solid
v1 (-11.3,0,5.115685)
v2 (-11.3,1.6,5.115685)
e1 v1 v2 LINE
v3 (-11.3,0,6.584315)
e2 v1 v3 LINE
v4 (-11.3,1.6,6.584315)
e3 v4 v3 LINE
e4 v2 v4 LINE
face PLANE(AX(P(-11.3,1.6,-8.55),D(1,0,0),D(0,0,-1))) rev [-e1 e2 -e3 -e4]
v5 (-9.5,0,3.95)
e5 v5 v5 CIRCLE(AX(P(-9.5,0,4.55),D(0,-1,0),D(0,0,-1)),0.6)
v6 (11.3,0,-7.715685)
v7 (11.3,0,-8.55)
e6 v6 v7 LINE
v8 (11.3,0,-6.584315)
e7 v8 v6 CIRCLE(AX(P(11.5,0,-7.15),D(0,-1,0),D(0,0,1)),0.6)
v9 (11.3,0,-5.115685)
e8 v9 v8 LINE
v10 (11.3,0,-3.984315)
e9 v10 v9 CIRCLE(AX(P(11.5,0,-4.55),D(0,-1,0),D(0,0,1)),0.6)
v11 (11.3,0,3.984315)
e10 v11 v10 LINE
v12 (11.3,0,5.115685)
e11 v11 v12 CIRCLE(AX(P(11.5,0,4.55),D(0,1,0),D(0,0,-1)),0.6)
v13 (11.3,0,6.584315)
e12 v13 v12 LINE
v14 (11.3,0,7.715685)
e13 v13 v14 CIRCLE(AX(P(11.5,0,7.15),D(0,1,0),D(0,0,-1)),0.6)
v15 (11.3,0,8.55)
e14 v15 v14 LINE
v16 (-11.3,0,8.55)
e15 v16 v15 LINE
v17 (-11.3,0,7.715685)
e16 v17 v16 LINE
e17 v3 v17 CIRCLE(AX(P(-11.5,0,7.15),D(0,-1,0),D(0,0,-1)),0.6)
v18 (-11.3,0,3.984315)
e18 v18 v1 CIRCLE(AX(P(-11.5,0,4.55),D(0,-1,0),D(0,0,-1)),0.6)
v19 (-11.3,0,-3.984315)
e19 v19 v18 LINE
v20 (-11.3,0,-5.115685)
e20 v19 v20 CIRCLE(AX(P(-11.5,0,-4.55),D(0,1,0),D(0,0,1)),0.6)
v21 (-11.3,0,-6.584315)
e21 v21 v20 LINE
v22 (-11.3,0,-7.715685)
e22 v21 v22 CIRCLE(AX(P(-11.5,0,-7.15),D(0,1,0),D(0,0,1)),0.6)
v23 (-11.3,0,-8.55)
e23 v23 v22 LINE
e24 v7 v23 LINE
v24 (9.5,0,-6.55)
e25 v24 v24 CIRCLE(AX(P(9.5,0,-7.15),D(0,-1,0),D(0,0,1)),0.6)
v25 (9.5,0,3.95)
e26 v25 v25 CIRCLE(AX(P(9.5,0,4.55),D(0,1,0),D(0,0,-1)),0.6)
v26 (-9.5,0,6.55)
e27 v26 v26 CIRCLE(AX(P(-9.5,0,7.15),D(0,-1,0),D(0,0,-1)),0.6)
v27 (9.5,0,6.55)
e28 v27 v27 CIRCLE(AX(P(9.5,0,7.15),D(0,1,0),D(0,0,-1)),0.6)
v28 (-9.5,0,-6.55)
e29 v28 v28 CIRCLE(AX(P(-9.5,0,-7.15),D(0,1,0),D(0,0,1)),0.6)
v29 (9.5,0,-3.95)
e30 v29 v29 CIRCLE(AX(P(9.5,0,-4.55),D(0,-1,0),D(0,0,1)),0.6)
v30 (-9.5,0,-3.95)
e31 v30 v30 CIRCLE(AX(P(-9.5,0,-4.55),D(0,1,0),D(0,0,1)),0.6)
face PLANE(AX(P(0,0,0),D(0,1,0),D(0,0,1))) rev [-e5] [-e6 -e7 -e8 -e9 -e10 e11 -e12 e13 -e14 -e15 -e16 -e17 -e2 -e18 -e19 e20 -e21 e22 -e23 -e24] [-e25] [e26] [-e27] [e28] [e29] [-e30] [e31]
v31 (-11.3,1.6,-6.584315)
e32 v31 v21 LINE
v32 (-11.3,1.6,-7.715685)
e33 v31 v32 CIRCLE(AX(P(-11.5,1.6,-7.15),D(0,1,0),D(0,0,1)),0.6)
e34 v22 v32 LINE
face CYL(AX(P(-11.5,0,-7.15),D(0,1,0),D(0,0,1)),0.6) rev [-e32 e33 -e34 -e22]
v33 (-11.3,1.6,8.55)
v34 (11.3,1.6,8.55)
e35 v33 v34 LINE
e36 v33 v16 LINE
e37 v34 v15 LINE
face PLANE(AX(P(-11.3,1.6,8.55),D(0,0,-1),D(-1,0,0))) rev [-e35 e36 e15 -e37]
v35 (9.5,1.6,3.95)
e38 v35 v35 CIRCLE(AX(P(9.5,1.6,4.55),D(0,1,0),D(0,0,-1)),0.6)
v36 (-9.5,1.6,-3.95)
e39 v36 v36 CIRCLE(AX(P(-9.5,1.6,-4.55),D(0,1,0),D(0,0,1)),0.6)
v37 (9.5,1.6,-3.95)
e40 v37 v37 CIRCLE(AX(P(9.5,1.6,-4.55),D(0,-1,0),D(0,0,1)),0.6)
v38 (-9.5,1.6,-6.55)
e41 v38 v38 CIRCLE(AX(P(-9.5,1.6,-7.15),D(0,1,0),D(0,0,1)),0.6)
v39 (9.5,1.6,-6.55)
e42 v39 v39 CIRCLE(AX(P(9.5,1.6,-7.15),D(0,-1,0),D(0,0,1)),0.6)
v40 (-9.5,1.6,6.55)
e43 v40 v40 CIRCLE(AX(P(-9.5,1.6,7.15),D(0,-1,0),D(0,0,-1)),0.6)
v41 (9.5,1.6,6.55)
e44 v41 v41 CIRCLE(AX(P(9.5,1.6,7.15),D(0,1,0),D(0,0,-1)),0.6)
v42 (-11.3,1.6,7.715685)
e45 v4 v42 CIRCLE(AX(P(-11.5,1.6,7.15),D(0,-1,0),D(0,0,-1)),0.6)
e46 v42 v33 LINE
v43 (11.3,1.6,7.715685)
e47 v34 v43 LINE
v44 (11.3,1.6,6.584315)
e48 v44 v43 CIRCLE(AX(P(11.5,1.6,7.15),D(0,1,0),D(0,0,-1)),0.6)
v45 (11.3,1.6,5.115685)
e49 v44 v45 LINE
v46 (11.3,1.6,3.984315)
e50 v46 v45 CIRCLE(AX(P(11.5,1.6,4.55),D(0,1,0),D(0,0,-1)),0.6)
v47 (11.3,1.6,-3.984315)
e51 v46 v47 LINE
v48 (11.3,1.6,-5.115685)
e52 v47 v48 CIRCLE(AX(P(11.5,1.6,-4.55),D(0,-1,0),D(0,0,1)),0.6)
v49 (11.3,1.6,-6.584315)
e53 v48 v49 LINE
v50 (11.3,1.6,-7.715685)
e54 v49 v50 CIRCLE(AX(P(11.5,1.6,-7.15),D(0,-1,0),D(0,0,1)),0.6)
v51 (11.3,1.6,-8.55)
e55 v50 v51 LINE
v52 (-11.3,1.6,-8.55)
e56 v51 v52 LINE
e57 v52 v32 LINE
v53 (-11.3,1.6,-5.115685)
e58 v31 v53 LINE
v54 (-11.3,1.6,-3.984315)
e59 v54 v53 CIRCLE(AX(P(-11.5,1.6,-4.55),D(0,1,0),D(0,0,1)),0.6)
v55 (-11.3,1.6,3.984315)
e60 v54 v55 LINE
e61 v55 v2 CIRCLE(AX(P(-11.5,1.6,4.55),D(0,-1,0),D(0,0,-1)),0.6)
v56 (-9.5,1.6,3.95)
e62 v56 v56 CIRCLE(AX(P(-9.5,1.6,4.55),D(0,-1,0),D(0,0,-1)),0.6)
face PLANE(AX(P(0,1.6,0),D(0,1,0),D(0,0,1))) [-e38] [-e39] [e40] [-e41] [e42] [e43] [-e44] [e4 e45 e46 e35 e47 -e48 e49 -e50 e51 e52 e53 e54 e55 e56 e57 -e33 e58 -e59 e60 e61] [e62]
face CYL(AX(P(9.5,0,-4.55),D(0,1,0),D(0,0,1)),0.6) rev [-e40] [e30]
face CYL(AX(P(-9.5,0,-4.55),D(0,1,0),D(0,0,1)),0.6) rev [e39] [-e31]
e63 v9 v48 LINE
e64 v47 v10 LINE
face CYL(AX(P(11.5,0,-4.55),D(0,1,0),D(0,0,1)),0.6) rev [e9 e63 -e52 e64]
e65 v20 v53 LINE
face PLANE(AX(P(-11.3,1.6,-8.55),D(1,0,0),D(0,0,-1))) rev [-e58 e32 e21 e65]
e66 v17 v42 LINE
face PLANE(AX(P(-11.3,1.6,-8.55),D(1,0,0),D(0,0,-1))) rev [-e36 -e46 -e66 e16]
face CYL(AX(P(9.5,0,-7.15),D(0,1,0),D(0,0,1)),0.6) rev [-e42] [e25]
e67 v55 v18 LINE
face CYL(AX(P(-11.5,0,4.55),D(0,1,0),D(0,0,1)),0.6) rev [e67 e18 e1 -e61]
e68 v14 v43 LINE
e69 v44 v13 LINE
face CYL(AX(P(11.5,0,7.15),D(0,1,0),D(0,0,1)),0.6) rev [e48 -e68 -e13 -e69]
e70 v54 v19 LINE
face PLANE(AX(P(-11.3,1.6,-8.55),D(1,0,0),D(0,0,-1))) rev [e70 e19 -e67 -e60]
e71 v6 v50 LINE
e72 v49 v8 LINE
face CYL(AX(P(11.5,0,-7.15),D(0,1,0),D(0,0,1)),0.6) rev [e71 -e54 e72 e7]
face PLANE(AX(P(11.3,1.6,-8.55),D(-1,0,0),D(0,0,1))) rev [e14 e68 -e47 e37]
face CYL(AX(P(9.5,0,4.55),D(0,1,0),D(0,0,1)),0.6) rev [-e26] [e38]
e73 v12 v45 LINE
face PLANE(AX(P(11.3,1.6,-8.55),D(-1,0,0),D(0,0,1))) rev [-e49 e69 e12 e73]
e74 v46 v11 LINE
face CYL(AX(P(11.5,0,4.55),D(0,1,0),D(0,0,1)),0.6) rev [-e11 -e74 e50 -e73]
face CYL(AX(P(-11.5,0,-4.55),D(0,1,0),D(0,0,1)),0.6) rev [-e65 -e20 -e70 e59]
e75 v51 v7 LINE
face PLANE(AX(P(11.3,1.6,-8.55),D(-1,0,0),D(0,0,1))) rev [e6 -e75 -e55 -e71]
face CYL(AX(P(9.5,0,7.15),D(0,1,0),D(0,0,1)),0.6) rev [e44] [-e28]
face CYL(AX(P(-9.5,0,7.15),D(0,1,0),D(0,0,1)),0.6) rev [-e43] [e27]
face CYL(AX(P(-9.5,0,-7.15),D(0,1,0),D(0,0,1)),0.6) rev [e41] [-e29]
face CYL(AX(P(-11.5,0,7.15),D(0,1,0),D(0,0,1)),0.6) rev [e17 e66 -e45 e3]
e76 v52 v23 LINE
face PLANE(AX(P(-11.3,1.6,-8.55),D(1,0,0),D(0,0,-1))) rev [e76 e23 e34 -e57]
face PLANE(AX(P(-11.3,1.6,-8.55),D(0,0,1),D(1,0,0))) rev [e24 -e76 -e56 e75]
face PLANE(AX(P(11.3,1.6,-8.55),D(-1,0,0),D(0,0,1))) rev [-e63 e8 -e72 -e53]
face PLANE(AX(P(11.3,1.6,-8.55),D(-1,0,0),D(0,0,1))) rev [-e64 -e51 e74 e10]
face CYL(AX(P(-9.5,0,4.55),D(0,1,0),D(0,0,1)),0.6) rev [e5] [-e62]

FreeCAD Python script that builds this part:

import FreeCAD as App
import Part
import Sketcher

doc = App.newDocument("Part")
body = doc.addObject("PartDesign::Body", "Body")

# Sketch on XZ plane
sketch1 = body.newObject("Sketcher::SketchObject", "Sketch")
sketch1.AttachmentSupport = (doc.getObject("XZ_Plane"), [""])
sketch1.MapMode = "FlatFace"
sketch1.addGeometry([
    Part.LineSegment(App.Vector(-11.3, -8.55, 0), App.Vector(-11.3, 8.55, 0)),
    Part.LineSegment(App.Vector(-11.3, 8.55, 0), App.Vector(11.3, 8.55, 0)),
    Part.LineSegment(App.Vector(11.3, 8.55, 0), App.Vector(11.3, -8.55, 0)),
    Part.LineSegment(App.Vector(11.3, -8.55, 0), App.Vector(-11.3, -8.55, 0)),
], False)
sketch1.addConstraint([
    Sketcher.Constraint("Coincident", 0, 2, 1, 1),
    Sketcher.Constraint("Coincident", 1, 2, 2, 1),
    Sketcher.Constraint("Coincident", 2, 2, 3, 1),
    Sketcher.Constraint("Coincident", 3, 2, 0, 1),
    Sketcher.Constraint("Vertical", 0),
    Sketcher.Constraint("Horizontal", 1),
    Sketcher.Constraint("Vertical", 2),
    Sketcher.Constraint("Horizontal", 3),
    Sketcher.Constraint("Symmetric", 0, 2, 2, 2, -1, 1),
    Sketcher.Constraint("DistanceX", 1, 1, 1, 2, 22.6),
    Sketcher.Constraint("DistanceY", 0, 1, 0, 2, 17.1),
])
pad1 = body.newObject("PartDesign::Pad", "Pad")
pad1.Profile = sketch1
pad1.Length = 1.6
pad1.Reversed = True

# Sketch on XZ plane
sketch2 = body.newObject("Sketcher::SketchObject", "Sketch001")
sketch2.AttachmentSupport = (doc.getObject("XZ_Plane"), [""])
sketch2.MapMode = "FlatFace"
sketch2.AttachmentOffset = App.Placement(App.Vector(0, 0, -1.6), App.Rotation())
sketch2.addGeometry([
    Part.Circle(App.Vector(-9.5, -7.15, 0), App.Vector(0, 0, 1), 0.6),
    Part.Circle(App.Vector(-9.5, -4.55, 0), App.Vector(0, 0, 1), 0.6),
], False)
sketch2.addConstraint([
    Sketcher.Constraint("Equal", 0, 1),
    Sketcher.Constraint("Vertical", 0, 3, 1, 3),
    Sketcher.Constraint("Diameter", 0, 1.2),
    Sketcher.Constraint("DistanceX", 0, 3, -1, 1, 9.5),
    Sketcher.Constraint("DistanceY", 0, 3, 1, 3, 2.6),
    Sketcher.Constraint("DistanceY", 0, 3, -1, 1, 7.15),
])
pocket1 = body.newObject("PartDesign::Pocket", "Pocket")
pocket1.Profile = sketch2
pocket1.Type = "ThroughAll"
pocket1.Reversed = True
doc.recompute()

linearpattern = body.newObject("PartDesign::LinearPattern", "LinearPattern")
linearpattern.Originals = [pocket1]
linearpattern.Direction = (doc.getObject("X_Axis"), [""])
linearpattern.Mode = "offset"
linearpattern.Offset = 2
linearpattern.Occurrences = 2
linearpattern.Reversed = True
body.Tip = linearpattern
doc.recompute()

mirrored = body.newObject("PartDesign::Mirrored", "Mirrored")
mirrored.Originals = [pocket1]
mirrored.MirrorPlane = (doc.getObject("YZ_Plane"), [""])
body.Tip = mirrored

# Sketch on XZ plane
sketch3 = body.newObject("Sketcher::SketchObject", "Sketch002")
sketch3.AttachmentSupport = (doc.getObject("XZ_Plane"), [""])
sketch3.MapMode = "FlatFace"
sketch3.AttachmentOffset = App.Placement(App.Vector(0, 0, -1.6), App.Rotation())
sketch3.addGeometry([
    Part.Circle(App.Vector(11.5, -7.15, 0), App.Vector(0, 0, 1), 0.6),
    Part.Circle(App.Vector(11.5, -4.55, 0), App.Vector(0, 0, 1), 0.6),
], False)
sketch3.addConstraint([
    Sketcher.Constraint("Equal", 0, 1),
    Sketcher.Constraint("Vertical", 0, 3, 1, 3),
    Sketcher.Constraint("Diameter", 0, 1.2),
    Sketcher.Constraint("DistanceX", -1, 1, 0, 3, 11.5),
    Sketcher.Constraint("DistanceY", 0, 3, 1, 3, 2.6),
    Sketcher.Constraint("DistanceY", 0, 3, -1, 1, 7.15),
])
pocket2 = body.newObject("PartDesign::Pocket", "Pocket001")
pocket2.Profile = sketch3
pocket2.Type = "ThroughAll"
pocket2.Reversed = True
doc.recompute()

mirrored2 = body.newObject("PartDesign::Mirrored", "Mirrored001")
mirrored2.Originals = [pocket1]
mirrored2.MirrorPlane = (doc.getObject("XY_Plane"), [""])
body.Tip = mirrored2

# Sketch on XZ plane
sketch4 = body.newObject("Sketcher::SketchObject", "Sketch003")
sketch4.AttachmentSupport = (doc.getObject("XZ_Plane"), [""])
sketch4.MapMode = "FlatFace"
sketch4.AttachmentOffset = App.Placement(App.Vector(0, 0, -1.6), App.Rotation())
sketch4.addGeometry([
    Part.Circle(App.Vector(-11.5, 7.15, 0), App.Vector(0, 0, 1), 0.6),
    Part.Circle(App.Vector(-11.5, 4.55, 0), App.Vector(0, 0, 1), 0.6),
], False)
sketch4.addConstraint([
    Sketcher.Constraint("Equal", 0, 1),
    Sketcher.Constraint("Vertical", 0, 3, 1, 3),
    Sketcher.Constraint("Diameter", 0, 1.2),
    Sketcher.Constraint("DistanceX", 0, 3, -1, 1, 11.5),
    Sketcher.Constraint("DistanceY", 1, 3, 0, 3, 2.6),
    Sketcher.Constraint("DistanceY", -1, 1, 0, 3, 7.15),
])
pocket3 = body.newObject("PartDesign::Pocket", "Pocket002")
pocket3.Profile = sketch4
pocket3.Type = "ThroughAll"
pocket3.Reversed = True

# Sketch on XZ plane
sketch5 = body.newObject("Sketcher::SketchObject", "Sketch004")
sketch5.AttachmentSupport = (doc.getObject("XZ_Plane"), [""])
sketch5.MapMode = "FlatFace"
sketch5.AttachmentOffset = App.Placement(App.Vector(0, 0, -1.6), App.Rotation())
sketch5.addGeometry([
    Part.Circle(App.Vector(9.5, 7.15, 0), App.Vector(0, 0, 1), 0.6),
    Part.Circle(App.Vector(9.5, 4.55, 0), App.Vector(0, 0, 1), 0.6),
], False)
sketch5.addConstraint([
    Sketcher.Constraint("Equal", 0, 1),
    Sketcher.Constraint("Vertical", 0, 3, 1, 3),
    Sketcher.Constraint("Diameter", 0, 1.2),
    Sketcher.Constraint("DistanceX", -1, 1, 0, 3, 9.5),
    Sketcher.Constraint("DistanceY", 1, 3, 0, 3, 2.6),
    Sketcher.Constraint("DistanceY", -1, 1, 0, 3, 7.15),
])
pocket4 = body.newObject("PartDesign::Pocket", "Pocket003")
pocket4.Profile = sketch5
pocket4.Type = "ThroughAll"
pocket4.Reversed = True

# Sketch on XZ plane
sketch6 = body.newObject("Sketcher::SketchObject", "Sketch005")
sketch6.AttachmentSupport = (doc.getObject("XZ_Plane"), [""])
sketch6.MapMode = "FlatFace"
sketch6.AttachmentOffset = App.Placement(App.Vector(0, 0, -1.6), App.Rotation())
sketch6.addGeometry([
    Part.Circle(App.Vector(11.5, 7.15, 0), App.Vector(0, 0, 1), 0.6),
    Part.Circle(App.Vector(11.5, 4.55, 0), App.Vector(0, 0, 1), 0.6),
], False)
sketch6.addConstraint([
    Sketcher.Constraint("Equal", 0, 1),
    Sketcher.Constraint("Vertical", 0, 3, 1, 3),
    Sketcher.Constraint("Diameter", 0, 1.2),
    Sketcher.Constraint("DistanceX", -1, 1, 0, 3, 11.5),
    Sketcher.Constraint("DistanceY", 1, 3, 0, 3, 2.6),
    Sketcher.Constraint("DistanceY", -1, 1, 0, 3, 7.15),
])
pocket5 = body.newObject("PartDesign::Pocket", "Pocket004")
pocket5.Profile = sketch6
pocket5.Type = "ThroughAll"
pocket5.Reversed = True

doc.recompute()
